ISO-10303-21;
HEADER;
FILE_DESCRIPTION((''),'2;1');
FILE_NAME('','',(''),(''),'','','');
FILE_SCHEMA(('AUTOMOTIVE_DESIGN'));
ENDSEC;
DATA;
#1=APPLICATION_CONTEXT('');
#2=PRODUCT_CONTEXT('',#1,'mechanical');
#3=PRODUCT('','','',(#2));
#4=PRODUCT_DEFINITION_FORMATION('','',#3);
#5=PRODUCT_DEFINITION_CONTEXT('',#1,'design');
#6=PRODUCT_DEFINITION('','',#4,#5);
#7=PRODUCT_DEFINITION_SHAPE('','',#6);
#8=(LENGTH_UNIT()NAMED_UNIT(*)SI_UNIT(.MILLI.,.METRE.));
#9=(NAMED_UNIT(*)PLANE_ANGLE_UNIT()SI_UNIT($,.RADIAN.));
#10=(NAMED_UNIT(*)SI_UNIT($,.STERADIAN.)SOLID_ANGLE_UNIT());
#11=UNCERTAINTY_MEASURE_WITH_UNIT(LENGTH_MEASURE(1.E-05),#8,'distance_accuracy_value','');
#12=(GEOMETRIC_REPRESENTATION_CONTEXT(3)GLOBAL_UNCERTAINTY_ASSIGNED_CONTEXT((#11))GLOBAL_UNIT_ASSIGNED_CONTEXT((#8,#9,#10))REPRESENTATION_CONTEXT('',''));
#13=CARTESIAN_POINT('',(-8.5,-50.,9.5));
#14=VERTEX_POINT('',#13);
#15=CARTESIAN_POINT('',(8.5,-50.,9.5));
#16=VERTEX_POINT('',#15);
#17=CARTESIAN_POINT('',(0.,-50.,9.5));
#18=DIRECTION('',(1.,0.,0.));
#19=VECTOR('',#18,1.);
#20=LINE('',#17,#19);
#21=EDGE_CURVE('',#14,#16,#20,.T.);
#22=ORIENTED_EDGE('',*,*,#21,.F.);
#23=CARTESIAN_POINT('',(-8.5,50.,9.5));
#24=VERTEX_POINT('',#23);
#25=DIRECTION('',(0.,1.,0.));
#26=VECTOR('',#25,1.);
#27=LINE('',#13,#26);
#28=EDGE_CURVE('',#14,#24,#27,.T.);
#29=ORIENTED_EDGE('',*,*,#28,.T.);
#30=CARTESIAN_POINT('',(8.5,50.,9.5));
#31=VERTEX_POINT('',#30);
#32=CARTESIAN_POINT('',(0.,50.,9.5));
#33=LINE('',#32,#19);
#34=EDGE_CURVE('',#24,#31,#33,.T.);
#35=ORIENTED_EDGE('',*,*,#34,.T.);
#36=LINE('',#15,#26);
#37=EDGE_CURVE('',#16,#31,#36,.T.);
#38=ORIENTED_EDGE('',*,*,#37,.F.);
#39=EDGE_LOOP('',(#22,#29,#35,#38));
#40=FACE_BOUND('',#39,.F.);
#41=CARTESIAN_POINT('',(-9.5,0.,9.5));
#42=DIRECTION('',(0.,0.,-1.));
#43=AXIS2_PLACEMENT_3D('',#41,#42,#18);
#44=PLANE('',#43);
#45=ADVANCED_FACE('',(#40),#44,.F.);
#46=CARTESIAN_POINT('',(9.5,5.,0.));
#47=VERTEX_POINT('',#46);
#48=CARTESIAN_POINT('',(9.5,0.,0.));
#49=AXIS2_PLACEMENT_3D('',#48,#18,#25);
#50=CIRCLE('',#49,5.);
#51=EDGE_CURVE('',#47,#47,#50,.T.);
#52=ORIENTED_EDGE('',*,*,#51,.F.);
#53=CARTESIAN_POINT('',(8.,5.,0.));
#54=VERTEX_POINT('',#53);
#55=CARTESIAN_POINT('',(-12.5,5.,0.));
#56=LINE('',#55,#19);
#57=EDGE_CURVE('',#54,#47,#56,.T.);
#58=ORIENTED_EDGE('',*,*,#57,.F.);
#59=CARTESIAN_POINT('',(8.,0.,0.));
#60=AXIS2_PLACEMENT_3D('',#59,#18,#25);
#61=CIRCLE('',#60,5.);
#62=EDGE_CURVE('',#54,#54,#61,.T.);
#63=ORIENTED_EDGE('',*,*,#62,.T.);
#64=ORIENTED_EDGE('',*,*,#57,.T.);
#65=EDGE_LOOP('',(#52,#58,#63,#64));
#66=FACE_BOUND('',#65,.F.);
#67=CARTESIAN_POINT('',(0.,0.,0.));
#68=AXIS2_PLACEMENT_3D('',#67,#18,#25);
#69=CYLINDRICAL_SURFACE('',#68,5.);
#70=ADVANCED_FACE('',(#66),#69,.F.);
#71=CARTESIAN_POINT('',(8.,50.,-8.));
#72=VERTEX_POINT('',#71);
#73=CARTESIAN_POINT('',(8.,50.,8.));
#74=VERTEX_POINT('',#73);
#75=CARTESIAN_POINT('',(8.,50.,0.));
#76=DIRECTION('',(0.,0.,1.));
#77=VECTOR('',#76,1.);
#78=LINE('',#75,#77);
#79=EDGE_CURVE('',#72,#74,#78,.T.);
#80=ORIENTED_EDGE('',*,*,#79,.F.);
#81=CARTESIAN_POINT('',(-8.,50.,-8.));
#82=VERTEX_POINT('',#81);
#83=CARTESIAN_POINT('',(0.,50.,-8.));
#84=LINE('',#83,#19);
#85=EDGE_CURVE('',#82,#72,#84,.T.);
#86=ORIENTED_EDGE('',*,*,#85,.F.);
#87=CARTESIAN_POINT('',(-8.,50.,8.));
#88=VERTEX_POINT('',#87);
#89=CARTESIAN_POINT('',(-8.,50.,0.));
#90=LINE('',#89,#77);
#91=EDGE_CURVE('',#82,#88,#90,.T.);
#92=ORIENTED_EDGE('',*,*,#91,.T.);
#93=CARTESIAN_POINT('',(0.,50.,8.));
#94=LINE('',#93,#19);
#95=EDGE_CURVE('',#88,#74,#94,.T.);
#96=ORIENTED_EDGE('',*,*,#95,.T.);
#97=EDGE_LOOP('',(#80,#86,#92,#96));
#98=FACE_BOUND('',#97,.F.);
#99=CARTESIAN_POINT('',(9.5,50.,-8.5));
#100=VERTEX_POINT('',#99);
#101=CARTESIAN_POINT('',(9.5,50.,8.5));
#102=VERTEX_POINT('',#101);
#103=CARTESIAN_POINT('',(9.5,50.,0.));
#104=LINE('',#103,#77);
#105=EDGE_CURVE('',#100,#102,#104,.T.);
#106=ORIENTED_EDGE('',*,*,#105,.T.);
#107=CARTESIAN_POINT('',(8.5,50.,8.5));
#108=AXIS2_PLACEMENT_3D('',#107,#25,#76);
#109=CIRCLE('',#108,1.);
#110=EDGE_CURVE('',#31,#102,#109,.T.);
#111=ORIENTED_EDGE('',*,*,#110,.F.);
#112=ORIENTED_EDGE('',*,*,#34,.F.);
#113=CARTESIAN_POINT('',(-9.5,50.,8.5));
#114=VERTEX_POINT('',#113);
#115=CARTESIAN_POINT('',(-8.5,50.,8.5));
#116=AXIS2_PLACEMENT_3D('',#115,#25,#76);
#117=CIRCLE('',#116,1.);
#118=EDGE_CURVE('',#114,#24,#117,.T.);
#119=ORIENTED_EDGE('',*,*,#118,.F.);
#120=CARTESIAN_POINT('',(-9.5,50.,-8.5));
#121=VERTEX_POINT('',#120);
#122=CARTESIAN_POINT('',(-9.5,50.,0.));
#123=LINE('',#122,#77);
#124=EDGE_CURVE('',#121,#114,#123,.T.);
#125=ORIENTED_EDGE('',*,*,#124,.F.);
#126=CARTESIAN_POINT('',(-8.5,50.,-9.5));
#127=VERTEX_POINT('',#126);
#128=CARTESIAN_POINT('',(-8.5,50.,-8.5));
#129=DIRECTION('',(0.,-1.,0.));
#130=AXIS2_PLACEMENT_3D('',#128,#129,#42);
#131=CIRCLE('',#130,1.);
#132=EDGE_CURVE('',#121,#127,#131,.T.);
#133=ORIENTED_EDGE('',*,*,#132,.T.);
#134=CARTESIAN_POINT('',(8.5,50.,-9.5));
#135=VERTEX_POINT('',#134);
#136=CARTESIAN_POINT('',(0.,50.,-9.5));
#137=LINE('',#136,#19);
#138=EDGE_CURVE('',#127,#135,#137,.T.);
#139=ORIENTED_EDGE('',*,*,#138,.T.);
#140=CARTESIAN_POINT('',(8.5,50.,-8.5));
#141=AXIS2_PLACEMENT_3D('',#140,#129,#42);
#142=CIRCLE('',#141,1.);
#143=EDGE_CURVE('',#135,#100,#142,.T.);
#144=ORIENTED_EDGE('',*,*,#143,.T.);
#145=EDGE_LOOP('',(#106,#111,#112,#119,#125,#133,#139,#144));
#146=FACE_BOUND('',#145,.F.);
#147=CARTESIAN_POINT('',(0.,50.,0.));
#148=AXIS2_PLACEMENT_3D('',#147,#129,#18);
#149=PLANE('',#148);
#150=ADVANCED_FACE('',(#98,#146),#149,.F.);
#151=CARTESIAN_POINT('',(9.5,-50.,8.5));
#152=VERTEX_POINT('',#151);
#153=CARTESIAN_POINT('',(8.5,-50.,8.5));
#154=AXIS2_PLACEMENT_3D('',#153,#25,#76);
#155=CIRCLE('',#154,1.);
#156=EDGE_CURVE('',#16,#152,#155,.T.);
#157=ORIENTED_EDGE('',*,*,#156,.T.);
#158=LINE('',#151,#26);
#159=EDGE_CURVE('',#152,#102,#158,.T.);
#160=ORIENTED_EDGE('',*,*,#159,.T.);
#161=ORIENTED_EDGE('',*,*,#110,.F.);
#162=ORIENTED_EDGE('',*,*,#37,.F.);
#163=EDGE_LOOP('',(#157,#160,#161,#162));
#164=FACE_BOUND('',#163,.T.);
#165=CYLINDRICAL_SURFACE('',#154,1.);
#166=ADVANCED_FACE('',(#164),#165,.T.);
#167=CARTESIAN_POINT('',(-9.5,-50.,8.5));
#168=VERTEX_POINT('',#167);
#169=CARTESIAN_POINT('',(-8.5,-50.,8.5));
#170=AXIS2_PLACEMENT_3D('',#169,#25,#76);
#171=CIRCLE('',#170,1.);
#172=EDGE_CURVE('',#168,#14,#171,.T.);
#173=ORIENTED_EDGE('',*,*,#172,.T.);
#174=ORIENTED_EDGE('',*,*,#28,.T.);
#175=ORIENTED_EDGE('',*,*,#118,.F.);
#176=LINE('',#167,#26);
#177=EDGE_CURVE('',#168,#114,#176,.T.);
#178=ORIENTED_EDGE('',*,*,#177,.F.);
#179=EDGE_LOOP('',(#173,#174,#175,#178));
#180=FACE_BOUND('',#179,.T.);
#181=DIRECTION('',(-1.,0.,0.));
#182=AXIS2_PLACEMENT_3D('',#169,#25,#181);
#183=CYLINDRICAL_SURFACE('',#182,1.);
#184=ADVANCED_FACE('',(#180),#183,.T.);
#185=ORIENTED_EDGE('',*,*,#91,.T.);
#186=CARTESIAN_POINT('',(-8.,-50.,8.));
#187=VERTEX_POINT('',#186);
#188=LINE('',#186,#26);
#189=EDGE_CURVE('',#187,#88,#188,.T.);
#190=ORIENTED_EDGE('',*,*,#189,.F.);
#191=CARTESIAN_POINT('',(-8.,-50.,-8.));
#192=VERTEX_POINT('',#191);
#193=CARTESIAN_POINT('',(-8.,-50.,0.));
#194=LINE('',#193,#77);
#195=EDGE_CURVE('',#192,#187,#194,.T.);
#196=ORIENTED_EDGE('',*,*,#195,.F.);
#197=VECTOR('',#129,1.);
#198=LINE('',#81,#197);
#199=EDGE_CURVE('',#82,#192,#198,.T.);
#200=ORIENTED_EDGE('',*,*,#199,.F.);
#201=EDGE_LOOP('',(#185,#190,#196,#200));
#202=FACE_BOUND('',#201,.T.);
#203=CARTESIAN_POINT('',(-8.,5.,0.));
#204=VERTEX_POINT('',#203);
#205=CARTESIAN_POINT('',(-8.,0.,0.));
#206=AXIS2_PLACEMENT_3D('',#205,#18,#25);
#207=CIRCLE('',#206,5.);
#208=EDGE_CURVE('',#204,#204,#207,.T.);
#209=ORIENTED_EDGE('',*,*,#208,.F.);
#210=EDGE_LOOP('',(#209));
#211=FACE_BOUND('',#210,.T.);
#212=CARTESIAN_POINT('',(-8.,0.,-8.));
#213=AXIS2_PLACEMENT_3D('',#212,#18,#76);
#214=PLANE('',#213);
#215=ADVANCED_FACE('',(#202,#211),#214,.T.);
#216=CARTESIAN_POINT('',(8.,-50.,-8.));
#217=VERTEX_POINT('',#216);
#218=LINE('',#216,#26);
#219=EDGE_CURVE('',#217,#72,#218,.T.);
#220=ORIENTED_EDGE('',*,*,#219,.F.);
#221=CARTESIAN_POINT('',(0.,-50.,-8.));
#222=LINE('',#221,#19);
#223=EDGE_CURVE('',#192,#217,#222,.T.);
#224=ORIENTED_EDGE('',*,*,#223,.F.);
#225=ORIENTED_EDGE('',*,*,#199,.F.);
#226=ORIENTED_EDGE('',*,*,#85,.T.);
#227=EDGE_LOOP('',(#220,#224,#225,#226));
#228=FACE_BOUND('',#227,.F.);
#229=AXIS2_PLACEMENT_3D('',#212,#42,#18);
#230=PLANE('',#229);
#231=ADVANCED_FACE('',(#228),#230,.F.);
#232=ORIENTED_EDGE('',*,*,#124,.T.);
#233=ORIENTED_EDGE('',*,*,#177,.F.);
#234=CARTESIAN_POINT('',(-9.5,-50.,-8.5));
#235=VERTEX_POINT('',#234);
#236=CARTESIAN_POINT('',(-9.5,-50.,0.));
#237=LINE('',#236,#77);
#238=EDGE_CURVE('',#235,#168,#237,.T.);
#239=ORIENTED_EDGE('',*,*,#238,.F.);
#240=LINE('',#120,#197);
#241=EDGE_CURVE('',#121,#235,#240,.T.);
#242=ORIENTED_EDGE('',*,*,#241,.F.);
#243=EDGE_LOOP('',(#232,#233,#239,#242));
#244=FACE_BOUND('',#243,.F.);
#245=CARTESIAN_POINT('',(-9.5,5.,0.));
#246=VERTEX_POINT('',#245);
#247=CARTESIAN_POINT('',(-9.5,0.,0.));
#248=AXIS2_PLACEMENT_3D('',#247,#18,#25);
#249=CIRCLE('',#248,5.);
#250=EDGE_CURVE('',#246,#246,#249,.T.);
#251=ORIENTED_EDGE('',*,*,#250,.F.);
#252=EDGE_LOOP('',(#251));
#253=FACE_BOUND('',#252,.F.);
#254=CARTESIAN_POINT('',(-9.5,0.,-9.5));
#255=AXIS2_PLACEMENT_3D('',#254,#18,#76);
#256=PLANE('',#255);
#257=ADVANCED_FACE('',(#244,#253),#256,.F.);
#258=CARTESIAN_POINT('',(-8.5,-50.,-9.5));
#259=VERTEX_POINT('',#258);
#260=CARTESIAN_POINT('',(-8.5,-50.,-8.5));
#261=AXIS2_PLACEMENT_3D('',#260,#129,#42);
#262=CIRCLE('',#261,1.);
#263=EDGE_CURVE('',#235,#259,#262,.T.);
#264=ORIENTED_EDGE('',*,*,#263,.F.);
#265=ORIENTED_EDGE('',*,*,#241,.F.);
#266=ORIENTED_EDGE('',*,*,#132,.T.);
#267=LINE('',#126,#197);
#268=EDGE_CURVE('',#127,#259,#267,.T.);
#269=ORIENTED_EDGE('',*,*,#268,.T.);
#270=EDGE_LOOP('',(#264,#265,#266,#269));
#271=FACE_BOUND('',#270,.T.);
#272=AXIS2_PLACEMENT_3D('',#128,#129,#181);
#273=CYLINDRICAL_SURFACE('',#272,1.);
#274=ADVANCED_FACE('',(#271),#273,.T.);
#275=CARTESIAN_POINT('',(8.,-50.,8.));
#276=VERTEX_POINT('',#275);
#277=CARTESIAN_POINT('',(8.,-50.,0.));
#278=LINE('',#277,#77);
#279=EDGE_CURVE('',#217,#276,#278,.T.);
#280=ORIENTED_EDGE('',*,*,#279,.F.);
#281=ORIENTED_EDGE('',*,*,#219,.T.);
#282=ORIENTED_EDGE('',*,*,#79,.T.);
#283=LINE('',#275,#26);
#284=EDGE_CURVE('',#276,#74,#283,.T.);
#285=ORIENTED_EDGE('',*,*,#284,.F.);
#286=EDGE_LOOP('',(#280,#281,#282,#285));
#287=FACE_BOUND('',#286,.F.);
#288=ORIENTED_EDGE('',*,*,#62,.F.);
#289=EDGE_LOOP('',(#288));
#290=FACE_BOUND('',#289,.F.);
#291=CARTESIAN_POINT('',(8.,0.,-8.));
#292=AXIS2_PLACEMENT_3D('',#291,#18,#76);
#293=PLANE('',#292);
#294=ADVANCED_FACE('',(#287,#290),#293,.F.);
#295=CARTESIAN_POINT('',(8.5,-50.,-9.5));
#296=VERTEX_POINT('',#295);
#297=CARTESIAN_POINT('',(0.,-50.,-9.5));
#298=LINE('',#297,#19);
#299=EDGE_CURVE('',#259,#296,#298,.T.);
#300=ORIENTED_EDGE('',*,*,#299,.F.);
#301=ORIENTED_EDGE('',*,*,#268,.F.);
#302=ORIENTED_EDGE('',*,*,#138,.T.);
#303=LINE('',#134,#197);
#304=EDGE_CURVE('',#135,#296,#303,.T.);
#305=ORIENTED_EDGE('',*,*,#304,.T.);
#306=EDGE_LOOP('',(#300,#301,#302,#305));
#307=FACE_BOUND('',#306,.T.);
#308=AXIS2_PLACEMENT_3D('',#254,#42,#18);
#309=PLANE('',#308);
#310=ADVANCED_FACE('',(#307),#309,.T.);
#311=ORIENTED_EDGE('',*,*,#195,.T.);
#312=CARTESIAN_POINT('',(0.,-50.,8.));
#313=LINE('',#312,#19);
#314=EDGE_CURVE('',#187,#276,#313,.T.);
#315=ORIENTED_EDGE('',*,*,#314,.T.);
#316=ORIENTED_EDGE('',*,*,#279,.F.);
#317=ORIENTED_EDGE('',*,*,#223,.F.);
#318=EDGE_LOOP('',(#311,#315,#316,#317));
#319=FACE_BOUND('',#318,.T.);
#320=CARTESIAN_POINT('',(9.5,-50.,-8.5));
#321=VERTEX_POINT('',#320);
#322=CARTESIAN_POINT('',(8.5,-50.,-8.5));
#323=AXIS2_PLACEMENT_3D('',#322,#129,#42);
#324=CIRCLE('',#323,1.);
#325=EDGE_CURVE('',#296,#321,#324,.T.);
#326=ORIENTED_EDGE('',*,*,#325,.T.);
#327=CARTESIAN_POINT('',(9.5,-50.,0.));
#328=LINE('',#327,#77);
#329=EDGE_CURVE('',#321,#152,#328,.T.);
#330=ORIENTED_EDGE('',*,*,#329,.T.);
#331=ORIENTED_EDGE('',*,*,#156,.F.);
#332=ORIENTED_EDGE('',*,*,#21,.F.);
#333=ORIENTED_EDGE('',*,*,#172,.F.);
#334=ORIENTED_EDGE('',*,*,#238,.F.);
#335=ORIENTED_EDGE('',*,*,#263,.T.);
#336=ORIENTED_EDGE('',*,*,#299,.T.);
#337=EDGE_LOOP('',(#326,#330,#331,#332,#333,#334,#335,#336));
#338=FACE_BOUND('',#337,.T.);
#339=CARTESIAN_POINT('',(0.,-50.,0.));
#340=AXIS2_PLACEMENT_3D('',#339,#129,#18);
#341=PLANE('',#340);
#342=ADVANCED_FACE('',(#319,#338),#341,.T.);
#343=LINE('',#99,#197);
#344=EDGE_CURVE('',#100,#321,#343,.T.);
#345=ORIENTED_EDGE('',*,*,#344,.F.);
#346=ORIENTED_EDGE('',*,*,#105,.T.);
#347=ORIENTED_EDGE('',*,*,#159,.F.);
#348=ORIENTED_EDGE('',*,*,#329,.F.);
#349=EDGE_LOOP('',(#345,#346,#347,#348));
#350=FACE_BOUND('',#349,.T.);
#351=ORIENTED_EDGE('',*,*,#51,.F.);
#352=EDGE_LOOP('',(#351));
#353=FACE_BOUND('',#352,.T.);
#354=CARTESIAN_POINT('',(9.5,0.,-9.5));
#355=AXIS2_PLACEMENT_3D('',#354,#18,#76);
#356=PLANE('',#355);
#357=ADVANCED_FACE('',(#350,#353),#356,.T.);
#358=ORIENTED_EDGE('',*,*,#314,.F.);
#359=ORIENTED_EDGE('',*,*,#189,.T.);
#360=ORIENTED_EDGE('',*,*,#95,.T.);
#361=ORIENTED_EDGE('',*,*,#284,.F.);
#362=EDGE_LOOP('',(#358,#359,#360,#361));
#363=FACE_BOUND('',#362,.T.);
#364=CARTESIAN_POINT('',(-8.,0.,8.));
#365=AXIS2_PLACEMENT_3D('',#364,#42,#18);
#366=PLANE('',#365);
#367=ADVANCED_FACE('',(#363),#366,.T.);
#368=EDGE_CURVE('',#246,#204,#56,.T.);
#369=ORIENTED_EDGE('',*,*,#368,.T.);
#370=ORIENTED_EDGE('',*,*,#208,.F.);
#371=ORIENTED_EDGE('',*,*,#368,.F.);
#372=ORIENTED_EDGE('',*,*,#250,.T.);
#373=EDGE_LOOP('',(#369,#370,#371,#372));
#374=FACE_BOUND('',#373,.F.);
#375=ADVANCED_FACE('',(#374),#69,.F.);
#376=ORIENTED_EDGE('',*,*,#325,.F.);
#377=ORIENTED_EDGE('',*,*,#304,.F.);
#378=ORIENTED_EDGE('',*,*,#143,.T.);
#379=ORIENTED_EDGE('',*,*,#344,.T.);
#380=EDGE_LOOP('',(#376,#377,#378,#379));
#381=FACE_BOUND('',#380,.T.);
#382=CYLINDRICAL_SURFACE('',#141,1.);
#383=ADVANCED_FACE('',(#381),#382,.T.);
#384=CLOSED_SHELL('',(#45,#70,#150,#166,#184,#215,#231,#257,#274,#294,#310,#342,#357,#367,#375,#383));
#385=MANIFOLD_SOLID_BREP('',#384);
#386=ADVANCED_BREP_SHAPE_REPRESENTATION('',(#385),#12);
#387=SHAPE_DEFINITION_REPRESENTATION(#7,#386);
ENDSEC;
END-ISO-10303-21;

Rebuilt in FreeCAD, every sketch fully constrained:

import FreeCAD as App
import Part
import Sketcher
Q = App.Units.Quantity


def edges_at(feature, points):
    """Names of the edges that pass closest to the given points."""
    edges = feature.Shape.Edges
    near = lambda p: min(range(len(edges)), key=lambda i: edges[i].distToShape(Part.Vertex(*p))[0])
    return sorted({f"Edge{near(p) + 1}" for p in points})

doc = App.newDocument("Part")
body = doc.addObject("PartDesign::Body", "Body")

sketch1 = body.newObject("Sketcher::SketchObject", "Sketch")
sketch1.AttachmentSupport = (doc.getObject("XZ_Plane"), [""])
sketch1.MapMode = "FlatFace"
sketch1.addGeometry([
    Part.LineSegment(App.Vector(-10, 10, 0), App.Vector(-10, -10, 0)),
    Part.LineSegment(App.Vector(-10, -10, 0), App.Vector(10, -10, 0)),
    Part.LineSegment(App.Vector(10, -10, 0), App.Vector(10, 10, 0)),
    Part.LineSegment(App.Vector(10, 10, 0), App.Vector(-10, 10, 0)),
    Part.LineSegment(App.Vector(8, -8, 0), App.Vector(-8, -8, 0)),
    Part.LineSegment(App.Vector(-8, -8, 0), App.Vector(-8, 8, 0)),
    Part.LineSegment(App.Vector(-8, 8, 0), App.Vector(8, 8, 0)),
    Part.LineSegment(App.Vector(8, 8, 0), App.Vector(8, -8, 0)),
], False)
sketch1.addConstraint([
    Sketcher.Constraint("Coincident", 0, 2, 1, 1),
    Sketcher.Constraint("Coincident", 1, 2, 2, 1),
    Sketcher.Constraint("Coincident", 2, 2, 3, 1),
    Sketcher.Constraint("Coincident", 3, 2, 0, 1),
    Sketcher.Constraint("Coincident", 4, 2, 5, 1),
    Sketcher.Constraint("Coincident", 5, 2, 6, 1),
    Sketcher.Constraint("Coincident", 6, 2, 7, 1),
    Sketcher.Constraint("Coincident", 7, 2, 4, 1),
    Sketcher.Constraint("Vertical", 0),
    Sketcher.Constraint("Horizontal", 1),
    Sketcher.Constraint("Vertical", 2),
    Sketcher.Constraint("Horizontal", 3),
    Sketcher.Constraint("Horizontal", 4),
    Sketcher.Constraint("Vertical", 5),
    Sketcher.Constraint("Horizontal", 6),
    Sketcher.Constraint("Vertical", 7),
    Sketcher.Constraint("Symmetric", 0, 2, 2, 2, -1, 1),
    Sketcher.Constraint("Symmetric", 4, 2, 6, 2, -1, 1),
    Sketcher.Constraint("Equal", 3, 0),
    Sketcher.Constraint("Equal", 6, 5),
    Sketcher.Constraint("DistanceX", 1, 1, 1, 2, Q("19 mm")),
    Sketcher.Constraint("DistanceX", 4, 2, 4, 1, Q("16 mm")),
])
pad1 = body.newObject("PartDesign::Pad", "Pad")
pad1.Profile = sketch1
pad1.Length = 100
pad1.Midplane = True

sketch2 = body.newObject("Sketcher::SketchObject", "Sketch001")
sketch2.AttachmentSupport = (doc.getObject("YZ_Plane"), [""])
sketch2.MapMode = "FlatFace"
sketch2.addGeometry(Part.Circle(App.Vector(0, 0, 0), App.Vector(0, 0, 1), 5), False)
sketch2.addConstraint([
    Sketcher.Constraint("Coincident", 0, 3, -1, 1),
    Sketcher.Constraint("Diameter", 0, Q("10 mm")),
])
pocket1 = body.newObject("PartDesign::Pocket", "Pocket")
pocket1.Profile = sketch2
pocket1.Length = 25
pocket1.Midplane = True
doc.recompute()

fillet = body.newObject("PartDesign::Fillet", "Fillet")
fillet.Base = (pocket1, edges_at(pocket1, [
    (9.5, 0, 9.5),
    (-9.5, 0, 9.5),
    (9.5, 0, -9.5),
    (-9.5, 0, -9.5),
]))
fillet.Radius = 1

doc.recompute()
